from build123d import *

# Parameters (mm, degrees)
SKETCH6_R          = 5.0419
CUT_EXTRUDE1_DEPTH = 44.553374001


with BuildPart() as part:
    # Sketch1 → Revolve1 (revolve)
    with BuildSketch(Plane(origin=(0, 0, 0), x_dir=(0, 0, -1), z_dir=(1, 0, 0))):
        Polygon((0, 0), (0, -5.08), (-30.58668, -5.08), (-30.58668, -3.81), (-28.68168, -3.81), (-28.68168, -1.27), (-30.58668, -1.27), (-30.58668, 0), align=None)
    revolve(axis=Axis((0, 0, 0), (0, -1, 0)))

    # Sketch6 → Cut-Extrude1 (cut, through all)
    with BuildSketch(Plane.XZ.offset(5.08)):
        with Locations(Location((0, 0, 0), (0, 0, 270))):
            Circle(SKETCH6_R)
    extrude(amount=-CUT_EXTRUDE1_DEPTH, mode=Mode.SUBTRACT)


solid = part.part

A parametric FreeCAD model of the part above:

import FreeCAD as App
import Part
import Sketcher
from FreeCAD import Vector
Q = App.Units.Quantity

doc = App.newDocument("Part")
body = doc.addObject("PartDesign::Body", "Body")

# Sketch on YZ plane
sketch1 = body.newObject("Sketcher::SketchObject", "Sketch")
sketch1.AttachmentSupport = (doc.getObject("YZ_Plane"), [""])
sketch1.MapMode = "FlatFace"
sketch1.addGeometry(Part.LineSegment(Vector(-5.1, 0, 0), Vector(0, 0, 0)), False)
sketch1.addGeometry(Part.LineSegment(Vector(0, 0, 0), Vector(0, 30.6, 0)), False)
sketch1.addGeometry(Part.LineSegment(Vector(0, 30.6, 0), Vector(-1.3, 30.6, 0)), False)
sketch1.addGeometry(Part.LineSegment(Vector(-1.3, 30.6, 0), Vector(-1.3, 28.7, 0)), False)
sketch1.addGeometry(Part.LineSegment(Vector(-1.3, 28.7, 0), Vector(-3.8, 28.7, 0)), False)
sketch1.addGeometry(Part.LineSegment(Vector(-3.8, 28.7, 0), Vector(-3.8, 30.6, 0)), False)
sketch1.addGeometry(Part.LineSegment(Vector(-3.8, 30.6, 0), Vector(-5.1, 30.6, 0)), False)
sketch1.addGeometry(Part.LineSegment(Vector(-5.1, 30.6, 0), Vector(-5.1, 0, 0)), False)
sketch1.addConstraint(Sketcher.Constraint("Coincident", 0, 2, 1, 1))
sketch1.addConstraint(Sketcher.Constraint("Coincident", 1, 2, 2, 1))
sketch1.addConstraint(Sketcher.Constraint("Coincident", 2, 2, 3, 1))
sketch1.addConstraint(Sketcher.Constraint("Coincident", 3, 2, 4, 1))
sketch1.addConstraint(Sketcher.Constraint("Coincident", 4, 2, 5, 1))
sketch1.addConstraint(Sketcher.Constraint("Coincident", 5, 2, 6, 1))
sketch1.addConstraint(Sketcher.Constraint("Coincident", 6, 2, 7, 1))
sketch1.addConstraint(Sketcher.Constraint("Coincident", 7, 2, 0, 1))
sketch1.addConstraint(Sketcher.Constraint("Horizontal", 0))
sketch1.addConstraint(Sketcher.Constraint("Vertical", 1))
sketch1.addConstraint(Sketcher.Constraint("Horizontal", 2))
sketch1.addConstraint(Sketcher.Constraint("Vertical", 3))
sketch1.addConstraint(Sketcher.Constraint("Horizontal", 4))
sketch1.addConstraint(Sketcher.Constraint("Vertical", 5))
sketch1.addConstraint(Sketcher.Constraint("Horizontal", 6))
sketch1.addConstraint(Sketcher.Constraint("Vertical", 7))
sketch1.addConstraint(Sketcher.Constraint("Coincident", 0, 2, -1, 1))
sketch1.addConstraint(Sketcher.Constraint("Horizontal", 2, 2, 5, 2))
sketch1.addConstraint(Sketcher.Constraint("Equal", 2, 6))
sketch1.addConstraint(Sketcher.Constraint("DistanceX", 0, 1, 0, 2, Q("0.2 in")))
sketch1.addConstraint(Sketcher.Constraint("DistanceX", 4, 2, 4, 1, Q("0.1 in")))
sketch1.addConstraint(Sketcher.Constraint("DistanceY", 3, 2, 3, 1, Q("0.075 in")))
sketch1.addConstraint(Sketcher.Constraint("DistanceY", 1, 1, 1, 2, Q("1.2042 in")))
revolution = body.newObject("PartDesign::Revolution", "Revolution")
revolution.Profile = sketch1
revolution.ReferenceAxis = (sketch1, ["H_Axis"])
revolution.Angle = 360

# Sketch on XZ plane
sketch2 = body.newObject("Sketcher::SketchObject", "Sketch001")
sketch2.AttachmentSupport = (doc.getObject("XZ_Plane"), [""])
sketch2.MapMode = "FlatFace"
sketch2.AttachmentOffset = App.Placement(Vector(0, 0, 0.2 * 25.4), App.Rotation())
sketch2.addGeometry(Part.Circle(Vector(0, 0, 0), Vector(0, 0, 1), 5), False)
sketch2.addConstraint(Sketcher.Constraint("Coincident", 0, 3, -1, 1))
sketch2.addConstraint(Sketcher.Constraint("Diameter", 0, Q("0.397 in")))
pocket1 = body.newObject("PartDesign::Pocket", "Pocket")
pocket1.Profile = sketch2
pocket1.Type = "ThroughAll"

doc.recompute()
